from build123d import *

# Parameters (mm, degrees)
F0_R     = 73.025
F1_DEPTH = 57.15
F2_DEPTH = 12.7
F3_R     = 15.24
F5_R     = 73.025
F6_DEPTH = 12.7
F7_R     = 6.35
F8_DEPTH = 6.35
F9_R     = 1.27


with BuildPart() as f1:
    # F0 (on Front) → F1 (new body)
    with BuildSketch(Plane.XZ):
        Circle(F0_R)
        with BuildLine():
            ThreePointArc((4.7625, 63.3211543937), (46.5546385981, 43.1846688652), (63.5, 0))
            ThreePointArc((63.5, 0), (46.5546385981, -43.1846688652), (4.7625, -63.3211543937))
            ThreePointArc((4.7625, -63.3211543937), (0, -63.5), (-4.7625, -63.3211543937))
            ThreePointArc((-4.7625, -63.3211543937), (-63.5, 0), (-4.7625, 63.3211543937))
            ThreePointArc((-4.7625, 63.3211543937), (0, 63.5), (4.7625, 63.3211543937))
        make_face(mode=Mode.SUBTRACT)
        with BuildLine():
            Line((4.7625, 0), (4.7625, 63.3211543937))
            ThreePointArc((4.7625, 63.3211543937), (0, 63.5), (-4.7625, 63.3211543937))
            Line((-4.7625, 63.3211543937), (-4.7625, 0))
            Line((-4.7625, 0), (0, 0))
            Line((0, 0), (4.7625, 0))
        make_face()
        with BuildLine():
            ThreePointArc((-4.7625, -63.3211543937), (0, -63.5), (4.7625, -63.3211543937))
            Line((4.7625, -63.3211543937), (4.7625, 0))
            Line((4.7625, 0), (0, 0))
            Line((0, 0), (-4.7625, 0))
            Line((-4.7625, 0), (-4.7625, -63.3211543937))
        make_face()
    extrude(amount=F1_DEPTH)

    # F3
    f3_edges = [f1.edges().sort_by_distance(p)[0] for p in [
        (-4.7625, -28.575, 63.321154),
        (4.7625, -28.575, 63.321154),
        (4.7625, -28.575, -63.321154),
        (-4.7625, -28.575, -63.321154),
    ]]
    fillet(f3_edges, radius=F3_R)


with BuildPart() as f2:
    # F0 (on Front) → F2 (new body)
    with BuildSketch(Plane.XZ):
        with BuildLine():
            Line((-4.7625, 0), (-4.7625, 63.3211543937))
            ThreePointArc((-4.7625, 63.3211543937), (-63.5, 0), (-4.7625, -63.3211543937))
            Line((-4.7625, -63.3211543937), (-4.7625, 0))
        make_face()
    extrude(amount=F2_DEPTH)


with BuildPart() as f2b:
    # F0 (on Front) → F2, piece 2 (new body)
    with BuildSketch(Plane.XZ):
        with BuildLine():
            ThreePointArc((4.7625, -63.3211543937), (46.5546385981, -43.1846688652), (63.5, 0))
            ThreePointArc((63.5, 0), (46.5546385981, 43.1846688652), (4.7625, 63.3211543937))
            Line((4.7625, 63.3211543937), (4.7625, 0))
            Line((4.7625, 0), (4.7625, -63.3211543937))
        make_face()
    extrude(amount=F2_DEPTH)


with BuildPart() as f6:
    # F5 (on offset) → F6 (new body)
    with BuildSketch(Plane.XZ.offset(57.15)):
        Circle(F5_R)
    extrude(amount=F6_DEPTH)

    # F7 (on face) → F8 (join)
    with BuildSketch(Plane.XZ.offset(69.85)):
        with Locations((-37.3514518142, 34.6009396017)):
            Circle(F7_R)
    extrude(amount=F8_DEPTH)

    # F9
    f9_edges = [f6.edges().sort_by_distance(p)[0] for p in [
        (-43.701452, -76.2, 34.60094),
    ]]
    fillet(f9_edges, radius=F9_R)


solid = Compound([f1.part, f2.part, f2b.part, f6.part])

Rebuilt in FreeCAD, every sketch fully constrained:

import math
import FreeCAD as App
import Part
import Sketcher
from FreeCAD import Vector
Q = App.Units.Quantity


def edges_at(feature, points):
    """Names of the edges that pass closest to the given points."""
    edges = feature.Shape.Edges
    near = lambda p: min(range(len(edges)), key=lambda i: edges[i].distToShape(Part.Vertex(*p))[0])
    return sorted({f"Edge{near(p) + 1}" for p in points})

doc = App.newDocument("Part")
body = doc.addObject("PartDesign::Body", "Body")

# Sketch on XZ plane
sketch1 = body.newObject("Sketcher::SketchObject", "Sketch")
sketch1.AttachmentSupport = (doc.getObject("XZ_Plane"), [""])
sketch1.MapMode = "FlatFace"
sketch1.addGeometry([
    Part.Circle(Vector(0, 0, 0), Vector(0, 0, 1), 73),  # 0
    Part.ArcOfCircle(Part.Circle(Vector(0, 0, 0), Vector(0, 0, 1), 64), math.radians(94), math.radians(266)),  # 1
    Part.LineSegment(Vector(-5, 63, 0), Vector(-5, -63, 0)),  # 2
    Part.ArcOfCircle(Part.Circle(Vector(0, 0, 0), Vector(0, 0, 1), 64), math.radians(0), math.radians(86)),  # 3
    Part.ArcOfCircle(Part.Circle(Vector(0, 0, 0), Vector(0, 0, 1), 64), math.radians(-86), math.radians(0)),  # 4
    Part.LineSegment(Vector(5, -63, 0), Vector(5, 63, 0)),  # 5
], False)
sketch1.addConstraint([
    Sketcher.Constraint("Coincident", 1, 1, 2, 1),
    Sketcher.Constraint("Coincident", 2, 2, 1, 2),
    Sketcher.Constraint("Tangent", 3, 1, 4, 2),
    Sketcher.Constraint("Coincident", 4, 1, 5, 1),
    Sketcher.Constraint("Coincident", 5, 2, 3, 2),
    Sketcher.Constraint("Vertical", 2),
    Sketcher.Constraint("Vertical", 5),
    Sketcher.Constraint("Coincident", 0, 3, -1, 1),
    Sketcher.Constraint("Coincident", 1, 3, -1, 1),
    Sketcher.Constraint("Coincident", 3, 3, -1, 1),
    Sketcher.Constraint("Equal", 1, 3),
    Sketcher.Constraint("Equal", 3, 4),
    Sketcher.Constraint("PointOnObject", 3, 1, -1),
    Sketcher.Constraint("Horizontal", 2, 2, 4, 1),
    Sketcher.Constraint("Radius", 1, Q("2.5 in")),
    Sketcher.Constraint("Diameter", 0, Q("5.75 in")),
    Sketcher.Constraint("DistanceX", 1, 1, -1, 1, Q("0.1875 in")),
])
pad1 = body.newObject("PartDesign::Pad", "Pad")
pad1.Profile = sketch1
pad1.Length = Q("2.25 in")
doc.recompute()

fillet = body.newObject("PartDesign::Fillet", "Fillet")
fillet.Base = (pad1, edges_at(pad1, [
    (-4.763, -28.575, 63.321),
    (4.763, -28.575, 63.321),
    (4.763, -28.575, -63.321),
    (-4.763, -28.575, -63.321),
]))
fillet.Radius = Q("0.6 in")
body2 = doc.addObject("PartDesign::Body", "Body001")

# Sketch on XZ plane
sketch2 = body2.newObject("Sketcher::SketchObject", "Sketch001")
sketch2.AttachmentSupport = (doc.getObject("XZ_Plane001"), [""])
sketch2.MapMode = "FlatFace"
sketch2.addGeometry([
    Part.ArcOfCircle(Part.Circle(Vector(0, 0, 0), Vector(0, 0, 1), 64), math.radians(94), math.radians(266)),
    Part.LineSegment(Vector(-5, -63, 0), Vector(-5, 63, 0)),
], False)
sketch2.addConstraint([
    Sketcher.Constraint("Coincident", 0, 1, 1, 2),
    Sketcher.Constraint("Coincident", 1, 1, 0, 2),
    Sketcher.Constraint("Vertical", 1),
    Sketcher.Constraint("Coincident", 0, 3, -1, 1),
    Sketcher.Constraint("Radius", 0, Q("2.5 in")),
    Sketcher.Constraint("DistanceX", 0, 1, -1, 1, Q("0.1875 in")),
])
pad2 = body2.newObject("PartDesign::Pad", "Pad001")
pad2.Profile = sketch2
pad2.Length = Q("0.5 in")
body3 = doc.addObject("PartDesign::Body", "Body002")

# Sketch on XZ plane
sketch3 = body3.newObject("Sketcher::SketchObject", "Sketch002")
sketch3.AttachmentSupport = (doc.getObject("XZ_Plane002"), [""])
sketch3.MapMode = "FlatFace"
sketch3.addGeometry([
    Part.ArcOfCircle(Part.Circle(Vector(0, 0, 0), Vector(0, 0, 1), 64), math.radians(-86), math.radians(0)),
    Part.ArcOfCircle(Part.Circle(Vector(0, 0, 0), Vector(0, 0, 1), 64), math.radians(0), math.radians(86)),
    Part.LineSegment(Vector(5, 63, 0), Vector(5, -63, 0)),
], False)
sketch3.addConstraint([
    Sketcher.Constraint("Tangent", 0, 2, 1, 1),
    Sketcher.Constraint("Coincident", 1, 2, 2, 1),
    Sketcher.Constraint("Coincident", 2, 2, 0, 1),
    Sketcher.Constraint("Vertical", 2),
    Sketcher.Constraint("Coincident", 0, 3, -1, 1),
    Sketcher.Constraint("Equal", 0, 1),
    Sketcher.Constraint("PointOnObject", 0, 2, -1),
    Sketcher.Constraint("Radius", 0, Q("2.5 in")),
    Sketcher.Constraint("DistanceX", -1, 1, 1, 2, Q("0.1875 in")),
])
pad3 = body3.newObject("PartDesign::Pad", "Pad002")
pad3.Profile = sketch3
pad3.Length = Q("0.5 in")
body4 = doc.addObject("PartDesign::Body", "Body003")

# Sketch on XZ plane
sketch4 = body4.newObject("Sketcher::SketchObject", "Sketch003")
sketch4.AttachmentSupport = (doc.getObject("XZ_Plane003"), [""])
sketch4.MapMode = "FlatFace"
sketch4.AttachmentOffset = App.Placement(Vector(0, 0, 2.25 * 25.4), App.Rotation())
sketch4.addGeometry(Part.Circle(Vector(0, 0, 0), Vector(0, 0, 1), 73), False)
sketch4.addConstraint([
    Sketcher.Constraint("Coincident", 0, 3, -1, 1),
    Sketcher.Constraint("Diameter", 0, Q("5.75 in")),
])
pad4 = body4.newObject("PartDesign::Pad", "Pad003")
pad4.Profile = sketch4
pad4.Length = Q("0.5 in")

# Sketch on XZ plane
sketch5 = body4.newObject("Sketcher::SketchObject", "Sketch004")
sketch5.AttachmentSupport = (doc.getObject("XZ_Plane003"), [""])
sketch5.MapMode = "FlatFace"
sketch5.AttachmentOffset = App.Placement(Vector(0, 0, 2.75 * 25.4), App.Rotation())
sketch5.addGeometry(Part.Circle(Vector(-37, 35, 0), Vector(0, 0, 1), 6), False)
sketch5.addConstraint([
    Sketcher.Constraint("Diameter", 0, Q("0.5 in")),
    Sketcher.Constraint("DistanceX", 0, 3, -1, 1, Q("37.351452 mm")),
    Sketcher.Constraint("DistanceY", -1, 1, 0, 3, Q("34.60094 mm")),
])
pad5 = body4.newObject("PartDesign::Pad", "Pad004")
pad5.Profile = sketch5
pad5.Length = Q("0.25 in")
doc.recompute()

fillet2 = body4.newObject("PartDesign::Fillet", "Fillet001")
fillet2.Base = (pad5, edges_at(pad5, [(-43.701, -76.2, 34.601)]))
fillet2.Radius = Q("0.05 in")

doc.recompute()
